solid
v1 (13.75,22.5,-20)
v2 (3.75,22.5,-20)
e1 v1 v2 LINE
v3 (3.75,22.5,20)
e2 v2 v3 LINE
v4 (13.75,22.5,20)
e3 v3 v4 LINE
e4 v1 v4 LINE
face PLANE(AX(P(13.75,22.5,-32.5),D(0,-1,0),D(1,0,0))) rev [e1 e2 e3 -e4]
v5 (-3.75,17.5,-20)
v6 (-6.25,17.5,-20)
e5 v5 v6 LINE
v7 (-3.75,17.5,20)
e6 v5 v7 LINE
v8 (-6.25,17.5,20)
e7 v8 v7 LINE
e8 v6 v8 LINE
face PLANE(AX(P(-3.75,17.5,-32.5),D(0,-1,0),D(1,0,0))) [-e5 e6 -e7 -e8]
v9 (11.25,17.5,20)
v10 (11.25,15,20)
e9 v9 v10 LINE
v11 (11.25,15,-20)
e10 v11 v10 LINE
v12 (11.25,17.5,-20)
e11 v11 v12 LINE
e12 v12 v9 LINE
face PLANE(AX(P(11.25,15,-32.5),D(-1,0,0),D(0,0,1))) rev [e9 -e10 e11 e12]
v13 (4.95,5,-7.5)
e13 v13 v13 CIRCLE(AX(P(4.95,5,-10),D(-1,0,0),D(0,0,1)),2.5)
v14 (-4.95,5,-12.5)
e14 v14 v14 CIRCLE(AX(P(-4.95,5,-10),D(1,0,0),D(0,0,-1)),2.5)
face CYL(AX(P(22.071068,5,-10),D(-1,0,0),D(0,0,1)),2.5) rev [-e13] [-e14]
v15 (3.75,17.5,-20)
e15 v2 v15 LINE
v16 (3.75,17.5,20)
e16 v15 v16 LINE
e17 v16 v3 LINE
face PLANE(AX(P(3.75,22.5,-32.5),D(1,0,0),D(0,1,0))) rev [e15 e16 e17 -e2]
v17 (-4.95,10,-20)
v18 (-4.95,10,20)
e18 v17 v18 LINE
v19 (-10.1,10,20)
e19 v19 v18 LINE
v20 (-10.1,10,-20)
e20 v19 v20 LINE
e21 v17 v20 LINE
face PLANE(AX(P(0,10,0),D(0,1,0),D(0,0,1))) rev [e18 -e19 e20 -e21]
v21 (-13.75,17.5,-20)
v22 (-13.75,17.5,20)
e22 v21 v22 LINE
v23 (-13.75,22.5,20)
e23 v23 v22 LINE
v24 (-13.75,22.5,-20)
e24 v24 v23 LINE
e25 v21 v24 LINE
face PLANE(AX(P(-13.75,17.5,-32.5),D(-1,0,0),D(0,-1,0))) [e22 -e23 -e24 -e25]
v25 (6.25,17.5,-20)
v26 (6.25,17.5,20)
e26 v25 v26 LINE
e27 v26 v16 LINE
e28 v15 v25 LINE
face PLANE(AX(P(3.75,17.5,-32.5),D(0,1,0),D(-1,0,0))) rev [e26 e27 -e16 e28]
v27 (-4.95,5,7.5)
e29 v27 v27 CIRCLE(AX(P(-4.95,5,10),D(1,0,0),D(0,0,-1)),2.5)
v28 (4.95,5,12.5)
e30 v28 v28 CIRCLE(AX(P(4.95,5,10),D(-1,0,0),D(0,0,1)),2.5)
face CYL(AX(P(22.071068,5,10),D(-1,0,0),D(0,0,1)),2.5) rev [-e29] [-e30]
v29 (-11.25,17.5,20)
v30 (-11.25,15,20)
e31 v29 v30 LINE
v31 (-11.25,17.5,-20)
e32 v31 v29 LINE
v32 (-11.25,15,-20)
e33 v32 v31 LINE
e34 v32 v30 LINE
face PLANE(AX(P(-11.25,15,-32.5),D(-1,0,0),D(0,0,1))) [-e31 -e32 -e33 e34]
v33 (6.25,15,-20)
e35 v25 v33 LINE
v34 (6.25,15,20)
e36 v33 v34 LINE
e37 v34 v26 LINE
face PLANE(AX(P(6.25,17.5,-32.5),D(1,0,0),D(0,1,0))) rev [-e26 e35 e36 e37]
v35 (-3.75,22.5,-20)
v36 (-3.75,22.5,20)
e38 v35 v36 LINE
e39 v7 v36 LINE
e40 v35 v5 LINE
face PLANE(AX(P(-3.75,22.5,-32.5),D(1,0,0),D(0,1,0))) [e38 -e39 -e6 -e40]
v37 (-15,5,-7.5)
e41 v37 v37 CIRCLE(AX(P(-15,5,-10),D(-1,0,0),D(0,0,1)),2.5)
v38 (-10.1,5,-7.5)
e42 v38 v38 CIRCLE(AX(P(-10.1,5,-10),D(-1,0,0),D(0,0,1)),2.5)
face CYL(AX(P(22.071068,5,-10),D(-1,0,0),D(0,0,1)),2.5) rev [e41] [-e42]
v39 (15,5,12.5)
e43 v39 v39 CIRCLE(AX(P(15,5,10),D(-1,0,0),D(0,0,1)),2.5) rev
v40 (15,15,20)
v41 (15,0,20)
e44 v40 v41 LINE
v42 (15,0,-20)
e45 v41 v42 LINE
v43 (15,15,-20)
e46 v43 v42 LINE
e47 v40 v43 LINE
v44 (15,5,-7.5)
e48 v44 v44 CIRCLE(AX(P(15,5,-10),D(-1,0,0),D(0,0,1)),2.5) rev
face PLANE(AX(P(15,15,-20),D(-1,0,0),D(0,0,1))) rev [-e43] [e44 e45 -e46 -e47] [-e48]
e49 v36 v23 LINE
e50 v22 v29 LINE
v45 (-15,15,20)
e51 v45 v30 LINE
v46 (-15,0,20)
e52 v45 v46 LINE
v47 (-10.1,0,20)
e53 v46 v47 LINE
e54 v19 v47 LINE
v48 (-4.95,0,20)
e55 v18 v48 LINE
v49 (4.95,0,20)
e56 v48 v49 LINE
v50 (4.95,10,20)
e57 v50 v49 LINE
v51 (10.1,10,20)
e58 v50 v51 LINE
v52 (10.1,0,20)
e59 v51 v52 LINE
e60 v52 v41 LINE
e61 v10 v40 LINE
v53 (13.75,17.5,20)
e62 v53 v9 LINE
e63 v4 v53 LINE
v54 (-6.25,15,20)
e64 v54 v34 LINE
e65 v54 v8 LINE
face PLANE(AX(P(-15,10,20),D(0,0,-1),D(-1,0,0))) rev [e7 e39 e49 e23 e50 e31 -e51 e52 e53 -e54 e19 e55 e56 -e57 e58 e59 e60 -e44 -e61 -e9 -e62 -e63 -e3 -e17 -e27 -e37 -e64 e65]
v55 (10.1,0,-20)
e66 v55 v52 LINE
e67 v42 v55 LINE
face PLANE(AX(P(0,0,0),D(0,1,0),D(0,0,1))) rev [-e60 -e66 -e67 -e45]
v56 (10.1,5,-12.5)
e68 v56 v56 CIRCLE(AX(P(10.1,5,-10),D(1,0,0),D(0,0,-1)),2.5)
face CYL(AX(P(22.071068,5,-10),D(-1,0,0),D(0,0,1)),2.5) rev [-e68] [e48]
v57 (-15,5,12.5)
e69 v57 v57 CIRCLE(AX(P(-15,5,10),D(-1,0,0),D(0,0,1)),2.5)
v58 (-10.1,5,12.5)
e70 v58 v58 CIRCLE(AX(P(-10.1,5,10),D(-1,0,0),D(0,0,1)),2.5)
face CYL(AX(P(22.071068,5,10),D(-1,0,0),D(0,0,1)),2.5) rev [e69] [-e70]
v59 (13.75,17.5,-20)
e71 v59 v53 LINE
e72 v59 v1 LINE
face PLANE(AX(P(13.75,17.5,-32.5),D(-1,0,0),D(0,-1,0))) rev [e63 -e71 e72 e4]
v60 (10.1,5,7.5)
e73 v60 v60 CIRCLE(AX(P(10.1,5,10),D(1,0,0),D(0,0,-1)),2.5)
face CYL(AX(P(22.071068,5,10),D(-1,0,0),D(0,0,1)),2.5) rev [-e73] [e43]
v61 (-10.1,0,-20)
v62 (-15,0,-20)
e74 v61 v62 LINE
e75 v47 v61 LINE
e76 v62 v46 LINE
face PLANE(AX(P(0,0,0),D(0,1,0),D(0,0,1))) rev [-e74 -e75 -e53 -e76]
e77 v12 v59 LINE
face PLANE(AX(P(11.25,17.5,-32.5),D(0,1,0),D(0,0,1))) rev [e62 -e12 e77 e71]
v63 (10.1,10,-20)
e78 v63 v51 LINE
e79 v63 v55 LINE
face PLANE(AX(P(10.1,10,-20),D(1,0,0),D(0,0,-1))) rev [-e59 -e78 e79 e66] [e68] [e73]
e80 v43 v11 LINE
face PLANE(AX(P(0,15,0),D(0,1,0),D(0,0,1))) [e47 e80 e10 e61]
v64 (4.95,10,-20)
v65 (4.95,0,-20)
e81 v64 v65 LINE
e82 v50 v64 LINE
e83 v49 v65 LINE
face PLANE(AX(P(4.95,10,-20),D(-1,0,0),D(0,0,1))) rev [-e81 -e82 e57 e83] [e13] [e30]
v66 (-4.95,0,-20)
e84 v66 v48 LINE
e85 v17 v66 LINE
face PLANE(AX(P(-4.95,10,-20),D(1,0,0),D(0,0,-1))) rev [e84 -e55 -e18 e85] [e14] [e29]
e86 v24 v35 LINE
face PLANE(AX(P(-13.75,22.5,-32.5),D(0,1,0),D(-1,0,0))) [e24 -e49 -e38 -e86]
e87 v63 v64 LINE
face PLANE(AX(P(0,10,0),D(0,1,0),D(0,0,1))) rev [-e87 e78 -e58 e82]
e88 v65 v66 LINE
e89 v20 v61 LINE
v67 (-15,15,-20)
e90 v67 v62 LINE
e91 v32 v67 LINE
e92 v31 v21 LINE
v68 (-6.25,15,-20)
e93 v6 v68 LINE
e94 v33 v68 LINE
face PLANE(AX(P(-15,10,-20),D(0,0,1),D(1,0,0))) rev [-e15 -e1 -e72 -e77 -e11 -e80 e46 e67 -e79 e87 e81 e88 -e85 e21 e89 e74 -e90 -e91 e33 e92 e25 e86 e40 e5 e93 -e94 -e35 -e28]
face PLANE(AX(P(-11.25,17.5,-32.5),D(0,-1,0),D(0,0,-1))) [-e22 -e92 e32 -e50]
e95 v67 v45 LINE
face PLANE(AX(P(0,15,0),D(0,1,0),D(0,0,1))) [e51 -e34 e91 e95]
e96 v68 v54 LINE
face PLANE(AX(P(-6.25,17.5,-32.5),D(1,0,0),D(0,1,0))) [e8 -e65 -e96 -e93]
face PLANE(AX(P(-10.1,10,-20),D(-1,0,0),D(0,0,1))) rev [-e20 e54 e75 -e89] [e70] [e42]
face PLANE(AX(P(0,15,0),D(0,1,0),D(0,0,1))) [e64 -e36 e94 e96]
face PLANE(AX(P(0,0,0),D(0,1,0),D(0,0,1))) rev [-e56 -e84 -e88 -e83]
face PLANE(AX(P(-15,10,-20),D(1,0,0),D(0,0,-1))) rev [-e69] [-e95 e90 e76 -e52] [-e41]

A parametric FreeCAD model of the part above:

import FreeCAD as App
import Part
import Sketcher

doc = App.newDocument("Part")
body = doc.addObject("PartDesign::Body", "Body")

sketch1 = doc.addObject("Sketcher::SketchObject", "Sketch")
body.addObject(sketch1)
sketch1.AttachmentSupport = (doc.XZ_Plane, [""])
sketch1.MapMode = "FlatFace"
sketch1.addGeometry(Part.LineSegment(App.Vector(-5, -20, 0), App.Vector(-5, 20, 0)), False)
sketch1.addGeometry(Part.LineSegment(App.Vector(-5, 20, 0), App.Vector(5, 20, 0)), False)
sketch1.addGeometry(Part.LineSegment(App.Vector(5, 20, 0), App.Vector(5, -20, 0)), False)
sketch1.addGeometry(Part.LineSegment(App.Vector(5, -20, 0), App.Vector(-5, -20, 0)), False)
sketch1.addConstraint(Sketcher.Constraint("Coincident", 0, 2, 1, 1))
sketch1.addConstraint(Sketcher.Constraint("Coincident", 1, 2, 2, 1))
sketch1.addConstraint(Sketcher.Constraint("Coincident", 2, 2, 3, 1))
sketch1.addConstraint(Sketcher.Constraint("Coincident", 3, 2, 0, 1))
sketch1.addConstraint(Sketcher.Constraint("Vertical", 0))
sketch1.addConstraint(Sketcher.Constraint("Horizontal", 1))
sketch1.addConstraint(Sketcher.Constraint("Vertical", 2))
sketch1.addConstraint(Sketcher.Constraint("Horizontal", 3))
sketch1.addConstraint(Sketcher.Constraint("Symmetric", 0, 2, 2, 2, -1, 1))
sketch1.addConstraint(Sketcher.Constraint("DistanceY", 0, 1, 0, 2, 40.0))
sketch1.addConstraint(Sketcher.Constraint("DistanceX", 1, 1, 1, 2, 9.9))
pad1 = doc.addObject("PartDesign::Pad", "Pad")
body.addObject(pad1)
pad1.Profile = sketch1
pad1.Length = 10
pad1.Reversed = True
body2 = doc.addObject("PartDesign::Body", "Body001")

sketch2 = doc.addObject("Sketcher::SketchObject", "Sketch001")
body2.addObject(sketch2)
sketch2.AttachmentSupport = (doc.getObject("XZ_Plane001"), [""])
sketch2.MapMode = "FlatFace"
sketch2.addGeometry(Part.LineSegment(App.Vector(-15, -20, 0), App.Vector(-15, 20, 0)), False)
sketch2.addGeometry(Part.LineSegment(App.Vector(-15, 20, 0), App.Vector(-10.1, 20, 0)), False)
sketch2.addGeometry(Part.LineSegment(App.Vector(-10.1, 20, 0), App.Vector(-10.1, -20, 0)), False)
sketch2.addGeometry(Part.LineSegment(App.Vector(-10.1, -20, 0), App.Vector(-15, -20, 0)), False)
sketch2.addConstraint(Sketcher.Constraint("Coincident", 0, 2, 1, 1))
sketch2.addConstraint(Sketcher.Constraint("Coincident", 1, 2, 2, 1))
sketch2.addConstraint(Sketcher.Constraint("Coincident", 2, 2, 3, 1))
sketch2.addConstraint(Sketcher.Constraint("Coincident", 3, 2, 0, 1))
sketch2.addConstraint(Sketcher.Constraint("Vertical", 0))
sketch2.addConstraint(Sketcher.Constraint("Horizontal", 1))
sketch2.addConstraint(Sketcher.Constraint("Vertical", 2))
sketch2.addConstraint(Sketcher.Constraint("Horizontal", 3))
sketch2.addConstraint(Sketcher.Constraint("DistanceY", 0, 1, 0, 2, 40.0))
sketch2.addConstraint(Sketcher.Constraint("DistanceX", 1, 1, 1, 2, 4.9))
sketch2.addConstraint(Sketcher.Constraint("DistanceX", 0, 2, -1, 1, 15.0))
sketch2.addConstraint(Sketcher.Constraint("DistanceY", -1, 1, 0, 2, 20.0))
pad2 = doc.addObject("PartDesign::Pad", "Pad001")
body2.addObject(pad2)
pad2.Profile = sketch2
pad2.Length = 10
pad2.Reversed = True
body3 = doc.addObject("PartDesign::Body", "Body002")

sketch3 = doc.addObject("Sketcher::SketchObject", "Sketch002")
body3.addObject(sketch3)
sketch3.AttachmentSupport = (doc.getObject("XZ_Plane002"), [""])
sketch3.MapMode = "FlatFace"
sketch3.addGeometry(Part.LineSegment(App.Vector(10.1, -20, 0), App.Vector(10.1, 20, 0)), False)
sketch3.addGeometry(Part.LineSegment(App.Vector(10.1, 20, 0), App.Vector(15, 20, 0)), False)
sketch3.addGeometry(Part.LineSegment(App.Vector(15, 20, 0), App.Vector(15, -20, 0)), False)
sketch3.addGeometry(Part.LineSegment(App.Vector(15, -20, 0), App.Vector(10.1, -20, 0)), False)
sketch3.addConstraint(Sketcher.Constraint("Coincident", 0, 2, 1, 1))
sketch3.addConstraint(Sketcher.Constraint("Coincident", 1, 2, 2, 1))
sketch3.addConstraint(Sketcher.Constraint("Coincident", 2, 2, 3, 1))
sketch3.addConstraint(Sketcher.Constraint("Coincident", 3, 2, 0, 1))
sketch3.addConstraint(Sketcher.Constraint("Vertical", 0))
sketch3.addConstraint(Sketcher.Constraint("Horizontal", 1))
sketch3.addConstraint(Sketcher.Constraint("Vertical", 2))
sketch3.addConstraint(Sketcher.Constraint("Horizontal", 3))
sketch3.addConstraint(Sketcher.Constraint("DistanceY", 0, 1, 0, 2, 40.0))
sketch3.addConstraint(Sketcher.Constraint("DistanceX", 1, 1, 1, 2, 4.9))
sketch3.addConstraint(Sketcher.Constraint("DistanceY", -1, 1, 0, 2, 20.0))
sketch3.addConstraint(Sketcher.Constraint("DistanceX", -1, 1, 1, 2, 15.0))
pad3 = doc.addObject("PartDesign::Pad", "Pad002")
body3.addObject(pad3)
pad3.Profile = sketch3
pad3.Length = 10
pad3.Reversed = True
body4 = doc.addObject("PartDesign::Body", "Body003")
body4.AllowCompound = True

sketch4 = doc.addObject("Sketcher::SketchObject", "Sketch003")
body4.addObject(sketch4)
sketch4.AttachmentSupport = (doc.getObject("YZ_Plane003"), [""])
sketch4.MapMode = "FlatFace"
sketch4.AttachmentOffset = App.Placement(App.Vector(0, 0, -15), App.Rotation())
sketch4.addGeometry(Part.Circle(App.Vector(5, -10, 0), App.Vector(0, 0, 1), 2.5), False)
sketch4.addGeometry(Part.Circle(App.Vector(5, 10, 0), App.Vector(0, 0, 1), 2.5), False)
sketch4.addConstraint(Sketcher.Constraint("Equal", 0, 1))
sketch4.addConstraint(Sketcher.Constraint("Symmetric", 0, 3, 1, 3, -1))
sketch4.addConstraint(Sketcher.Constraint("Diameter", 0, 5.0))
sketch4.addConstraint(Sketcher.Constraint("DistanceX", -1, 1, 0, 3, 5.0))
sketch4.addConstraint(Sketcher.Constraint("DistanceY", 0, 3, -1, 1, 10.0))
pad4 = doc.addObject("PartDesign::Pad", "Pad003")
body4.addObject(pad4)
pad4.Profile = sketch4
pad4.Length = 30
doc.recompute()

body5 = doc.addObject("PartDesign::Body", "Body004")
body5.BaseFeature = body4
boolean = doc.addObject("PartDesign::Boolean", "Boolean")
body.addObject(boolean)
boolean.Type = "Cut"
boolean.addObjects([body5])
doc.recompute()

body6 = doc.addObject("PartDesign::Body", "Body005")
body6.BaseFeature = body4
boolean2 = doc.addObject("PartDesign::Boolean", "Boolean001")
body2.addObject(boolean2)
boolean2.Type = "Cut"
boolean2.addObjects([body6])
doc.recompute()

boolean3 = doc.addObject("PartDesign::Boolean", "Boolean002")
body3.addObject(boolean3)
boolean3.Type = "Cut"
boolean3.addObjects([body4])
body.AllowCompound = True
doc.recompute()

boolean4 = doc.addObject("PartDesign::Boolean", "Boolean003")
body.addObject(boolean4)
boolean4.Type = "Fuse"
boolean4.addObjects([body2])
doc.recompute()

boolean5 = doc.addObject("PartDesign::Boolean", "Boolean004")
body.addObject(boolean5)
boolean5.Type = "Fuse"
boolean5.addObjects([body3])

sketch5 = doc.addObject("Sketcher::SketchObject", "Sketch004")
body.addObject(sketch5)
sketch5.AttachmentSupport = (doc.XZ_Plane, [""])
sketch5.MapMode = "FlatFace"
sketch5.AttachmentOffset = App.Placement(App.Vector(0, 0, -10), App.Rotation())
sketch5.addGeometry(Part.LineSegment(App.Vector(-15, -20, 0), App.Vector(-15, 20, 0)), False)
sketch5.addGeometry(Part.LineSegment(App.Vector(-15, 20, 0), App.Vector(15, 20, 0)), False)
sketch5.addGeometry(Part.LineSegment(App.Vector(15, 20, 0), App.Vector(15, -20, 0)), False)
sketch5.addGeometry(Part.LineSegment(App.Vector(15, -20, 0), App.Vector(-15, -20, 0)), False)
sketch5.addConstraint(Sketcher.Constraint("Coincident", 0, 2, 1, 1))
sketch5.addConstraint(Sketcher.Constraint("Coincident", 1, 2, 2, 1))
sketch5.addConstraint(Sketcher.Constraint("Coincident", 2, 2, 3, 1))
sketch5.addConstraint(Sketcher.Constraint("Coincident", 3, 2, 0, 1))
sketch5.addConstraint(Sketcher.Constraint("Vertical", 0))
sketch5.addConstraint(Sketcher.Constraint("Horizontal", 1))
sketch5.addConstraint(Sketcher.Constraint("Vertical", 2))
sketch5.addConstraint(Sketcher.Constraint("Horizontal", 3))
sketch5.addConstraint(Sketcher.Constraint("Symmetric", 0, 2, 2, 2, -1, 1))
sketch5.addConstraint(Sketcher.Constraint("DistanceX", 1, 1, 1, 2, 30.0))
sketch5.addConstraint(Sketcher.Constraint("DistanceY", 0, 1, 0, 2, 40.0))
pad5 = doc.addObject("PartDesign::Pad", "Pad004")
body.addObject(pad5)
pad5.Profile = sketch5
pad5.Length = 5
pad5.Reversed = True

sketch6 = doc.addObject("Sketcher::SketchObject", "Sketch005")
body.addObject(sketch6)
sketch6.AttachmentSupport = (doc.XY_Plane, [""])
sketch6.MapMode = "FlatFace"
sketch6.AttachmentOffset = App.Placement(App.Vector(0, 0, 20), App.Rotation())
sketch6.addGeometry(Part.LineSegment(App.Vector(-11.2, 17.5, 0), App.Vector(-11.2, 15, 0)), False)
sketch6.addGeometry(Part.LineSegment(App.Vector(-11.2, 15, 0), App.Vector(-6.2, 15, 0)), False)
sketch6.addGeometry(Part.LineSegment(App.Vector(-6.2, 15, 0), App.Vector(-6.2, 17.5, 0)), False)
sketch6.addGeometry(Part.LineSegment(App.Vector(-6.2, 17.5, 0), App.Vector(-3.8, 17.5, 0)), False)
sketch6.addGeometry(Part.LineSegment(App.Vector(-3.8, 17.5, 0), App.Vector(-3.8, 22.5, 0)), False)
sketch6.addGeometry(Part.LineSegment(App.Vector(-3.8, 22.5, 0), App.Vector(-13.8, 22.5, 0)), False)
sketch6.addGeometry(Part.LineSegment(App.Vector(-13.8, 22.5, 0), App.Vector(-13.8, 17.5, 0)), False)
sketch6.addGeometry(Part.LineSegment(App.Vector(-13.8, 17.5, 0), App.Vector(-11.2, 17.5, 0)), False)
sketch6.addConstraint(Sketcher.Constraint("Coincident", 0, 2, 1, 1))
sketch6.addConstraint(Sketcher.Constraint("Coincident", 1, 2, 2, 1))
sketch6.addConstraint(Sketcher.Constraint("Coincident", 2, 2, 3, 1))
sketch6.addConstraint(Sketcher.Constraint("Coincident", 3, 2, 4, 1))
sketch6.addConstraint(Sketcher.Constraint("Coincident", 4, 2, 5, 1))
sketch6.addConstraint(Sketcher.Constraint("Coincident", 5, 2, 6, 1))
sketch6.addConstraint(Sketcher.Constraint("Coincident", 6, 2, 7, 1))
sketch6.addConstraint(Sketcher.Constraint("Coincident", 7, 2, 0, 1))
sketch6.addConstraint(Sketcher.Constraint("Vertical", 0))
sketch6.addConstraint(Sketcher.Constraint("Horizontal", 1))
sketch6.addConstraint(Sketcher.Constraint("Vertical", 2))
sketch6.addConstraint(Sketcher.Constraint("Horizontal", 3))
sketch6.addConstraint(Sketcher.Constraint("Vertical", 4))
sketch6.addConstraint(Sketcher.Constraint("Horizontal", 5))
sketch6.addConstraint(Sketcher.Constraint("Vertical", 6))
sketch6.addConstraint(Sketcher.Constraint("Horizontal", 7))
sketch6.addConstraint(Sketcher.Constraint("Horizontal", 3, 2, 6, 2))
sketch6.addConstraint(Sketcher.Constraint("Equal", 3, 7))
sketch6.addConstraint(Sketcher.Constraint("Equal", 7, 0))
sketch6.addConstraint(Sketcher.Constraint("Equal", 1, 4))
sketch6.addConstraint(Sketcher.Constraint("DistanceX", 1, 1, 1, 2, 5.0))
sketch6.addConstraint(Sketcher.Constraint("DistanceX", 5, 2, 5, 1, 10.0))
sketch6.addConstraint(Sketcher.Constraint("DistanceY", -1, 1, 0, 2, 15.0))
sketch6.addConstraint(Sketcher.Constraint("DistanceX", 0, 2, -1, 1, 11.25))
pad6 = doc.addObject("PartDesign::Pad", "Pad005")
body.addObject(pad6)
pad6.Profile = sketch6
pad6.Length = 40
pad6.Reversed = True
doc.recompute()

mirrored = doc.addObject("PartDesign::Mirrored", "Mirrored")
body.addObject(mirrored)
mirrored.Originals = [pad6]
mirrored.MirrorPlane = (doc.YZ_Plane, [""])
body.Tip = mirrored

doc.recompute()
